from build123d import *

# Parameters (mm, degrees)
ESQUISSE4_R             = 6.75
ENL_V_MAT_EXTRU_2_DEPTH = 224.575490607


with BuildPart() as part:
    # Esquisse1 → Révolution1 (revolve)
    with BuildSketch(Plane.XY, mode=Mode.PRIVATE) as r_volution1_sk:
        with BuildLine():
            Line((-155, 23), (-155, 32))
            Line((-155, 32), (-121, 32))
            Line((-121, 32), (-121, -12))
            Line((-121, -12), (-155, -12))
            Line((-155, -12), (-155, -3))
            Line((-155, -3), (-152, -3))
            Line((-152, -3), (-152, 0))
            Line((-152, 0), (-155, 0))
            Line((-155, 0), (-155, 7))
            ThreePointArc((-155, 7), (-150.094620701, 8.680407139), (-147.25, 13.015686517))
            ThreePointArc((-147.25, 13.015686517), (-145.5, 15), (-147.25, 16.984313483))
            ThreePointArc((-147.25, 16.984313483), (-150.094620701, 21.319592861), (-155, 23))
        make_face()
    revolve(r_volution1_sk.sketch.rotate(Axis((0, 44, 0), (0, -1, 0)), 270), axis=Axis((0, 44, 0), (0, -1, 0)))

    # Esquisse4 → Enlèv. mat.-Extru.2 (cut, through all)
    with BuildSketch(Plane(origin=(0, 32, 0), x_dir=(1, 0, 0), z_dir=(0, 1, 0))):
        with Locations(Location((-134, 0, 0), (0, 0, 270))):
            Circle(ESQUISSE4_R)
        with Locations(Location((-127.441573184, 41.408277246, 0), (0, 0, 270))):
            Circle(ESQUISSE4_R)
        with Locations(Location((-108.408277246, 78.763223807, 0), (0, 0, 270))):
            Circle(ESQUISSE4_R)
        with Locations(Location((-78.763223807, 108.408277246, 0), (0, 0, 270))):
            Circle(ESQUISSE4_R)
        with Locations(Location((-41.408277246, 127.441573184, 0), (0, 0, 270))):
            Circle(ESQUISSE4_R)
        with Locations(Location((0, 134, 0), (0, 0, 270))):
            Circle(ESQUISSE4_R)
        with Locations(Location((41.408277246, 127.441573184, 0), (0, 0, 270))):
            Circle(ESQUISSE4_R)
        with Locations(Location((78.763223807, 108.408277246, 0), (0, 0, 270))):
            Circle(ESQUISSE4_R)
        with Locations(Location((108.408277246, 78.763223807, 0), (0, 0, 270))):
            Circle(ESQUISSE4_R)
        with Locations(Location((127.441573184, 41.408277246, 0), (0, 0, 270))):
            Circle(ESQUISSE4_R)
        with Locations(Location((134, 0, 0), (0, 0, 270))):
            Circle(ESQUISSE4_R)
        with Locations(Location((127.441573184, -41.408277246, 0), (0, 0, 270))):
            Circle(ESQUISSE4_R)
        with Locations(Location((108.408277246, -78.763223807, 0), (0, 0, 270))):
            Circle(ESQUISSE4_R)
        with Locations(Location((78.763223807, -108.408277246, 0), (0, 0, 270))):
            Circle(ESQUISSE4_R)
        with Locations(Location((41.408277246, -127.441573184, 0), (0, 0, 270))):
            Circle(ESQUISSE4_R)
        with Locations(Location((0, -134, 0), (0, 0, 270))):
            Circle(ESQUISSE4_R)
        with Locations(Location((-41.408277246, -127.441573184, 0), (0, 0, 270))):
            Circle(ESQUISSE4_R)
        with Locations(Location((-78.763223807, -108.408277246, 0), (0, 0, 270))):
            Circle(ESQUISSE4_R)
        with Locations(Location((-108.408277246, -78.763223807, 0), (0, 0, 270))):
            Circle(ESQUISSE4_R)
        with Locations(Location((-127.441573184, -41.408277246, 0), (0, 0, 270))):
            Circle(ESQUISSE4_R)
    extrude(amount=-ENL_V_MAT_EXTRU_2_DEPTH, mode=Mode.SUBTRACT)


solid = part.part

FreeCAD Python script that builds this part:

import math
import FreeCAD as App
import Part
import Sketcher

doc = App.newDocument("Part")
body = doc.addObject("PartDesign::Body", "Body")

sketch1 = doc.addObject("Sketcher::SketchObject", "Sketch")
body.addObject(sketch1)
sketch1.AttachmentSupport = (doc.XY_Plane, [""])
sketch1.MapMode = "FlatFace"
sketch1.addGeometry(Part.LineSegment(App.Vector(-155, 32, 0), App.Vector(-155, 23, 0)), False)
sketch1.addGeometry(Part.ArcOfCircle(Part.Circle(App.Vector(-155, 15, 0), App.Vector(0, 0, 1), 8), math.radians(14.361512), math.radians(90)), False)
sketch1.addGeometry(Part.ArcOfCircle(Part.Circle(App.Vector(-147.5, 15, 0), App.Vector(0, 0, 1), 2), math.radians(-82.819244), math.radians(82.819244)), False)
sketch1.addGeometry(Part.ArcOfCircle(Part.Circle(App.Vector(-155, 15, 0), App.Vector(0, 0, 1), 8), math.radians(-90), math.radians(-14.361512)), False)
sketch1.addGeometry(Part.LineSegment(App.Vector(-155, 7, 0), App.Vector(-155, 0, 0)), False)
sketch1.addGeometry(Part.LineSegment(App.Vector(-155, 0, 0), App.Vector(-152, 0, 0)), False)
sketch1.addGeometry(Part.LineSegment(App.Vector(-152, 0, 0), App.Vector(-152, -3, 0)), False)
sketch1.addGeometry(Part.LineSegment(App.Vector(-152, -3, 0), App.Vector(-155, -3, 0)), False)
sketch1.addGeometry(Part.LineSegment(App.Vector(-155, -3, 0), App.Vector(-155, -12, 0)), False)
sketch1.addGeometry(Part.LineSegment(App.Vector(-155, -12, 0), App.Vector(-121, -12, 0)), False)
sketch1.addGeometry(Part.LineSegment(App.Vector(-121, -12, 0), App.Vector(-121, 32, 0)), False)
sketch1.addGeometry(Part.LineSegment(App.Vector(-121, 32, 0), App.Vector(-155, 32, 0)), False)
sketch1.addConstraint(Sketcher.Constraint("Coincident", 0, 2, 1, 2))
sketch1.addConstraint(Sketcher.Constraint("Coincident", 1, 1, 2, 2))
sketch1.addConstraint(Sketcher.Constraint("Coincident", 2, 1, 3, 2))
sketch1.addConstraint(Sketcher.Constraint("Coincident", 3, 1, 4, 1))
sketch1.addConstraint(Sketcher.Constraint("Coincident", 4, 2, 5, 1))
sketch1.addConstraint(Sketcher.Constraint("Coincident", 5, 2, 6, 1))
sketch1.addConstraint(Sketcher.Constraint("Coincident", 6, 2, 7, 1))
sketch1.addConstraint(Sketcher.Constraint("Coincident", 7, 2, 8, 1))
sketch1.addConstraint(Sketcher.Constraint("Coincident", 8, 2, 9, 1))
sketch1.addConstraint(Sketcher.Constraint("Coincident", 9, 2, 10, 1))
sketch1.addConstraint(Sketcher.Constraint("Coincident", 10, 2, 11, 1))
sketch1.addConstraint(Sketcher.Constraint("Coincident", 11, 2, 0, 1))
sketch1.addConstraint(Sketcher.Constraint("Vertical", 0))
sketch1.addConstraint(Sketcher.Constraint("Vertical", 4))
sketch1.addConstraint(Sketcher.Constraint("Horizontal", 5))
sketch1.addConstraint(Sketcher.Constraint("Vertical", 6))
sketch1.addConstraint(Sketcher.Constraint("Horizontal", 7))
sketch1.addConstraint(Sketcher.Constraint("Vertical", 8))
sketch1.addConstraint(Sketcher.Constraint("Horizontal", 9))
sketch1.addConstraint(Sketcher.Constraint("Vertical", 10))
sketch1.addConstraint(Sketcher.Constraint("Horizontal", 11))
sketch1.addConstraint(Sketcher.Constraint("Coincident", 3, 3, 1, 3))
sketch1.addConstraint(Sketcher.Constraint("Equal", 1, 3))
sketch1.addConstraint(Sketcher.Constraint("PointOnObject", 4, 2, -1))
sketch1.addConstraint(Sketcher.Constraint("Horizontal", 1, 3, 2, 3))
sketch1.addConstraint(Sketcher.Constraint("Vertical", 3, 3, 0, 2))
sketch1.addConstraint(Sketcher.Constraint("Vertical", 0, 2, 3, 1))
sketch1.addConstraint(Sketcher.Constraint("Vertical", 4, 2, 7, 2))
sketch1.addConstraint(Sketcher.Constraint("Equal", 7, 6))
sketch1.addConstraint(Sketcher.Constraint("Equal", 0, 8))
sketch1.addConstraint(Sketcher.Constraint("Radius", 1, 8.0))
sketch1.addConstraint(Sketcher.Constraint("Radius", 2, 2.0))
sketch1.addConstraint(Sketcher.Constraint("DistanceX", 5, 1, 5, 2, 3.0))
sketch1.addConstraint(Sketcher.Constraint("DistanceX", 9, 1, 9, 2, 34.0))
sketch1.addConstraint(Sketcher.Constraint("DistanceY", 0, 2, 0, 1, 9.0))
sketch1.addConstraint(Sketcher.Constraint("DistanceY", 4, 2, 4, 1, 7.0))
sketch1.addConstraint(Sketcher.Constraint("DistanceX", 1, 3, -1, 1, 155.0))
sketch1.addConstraint(Sketcher.Constraint("DistanceX", 2, 3, -1, 1, 147.5))
revolution = doc.addObject("PartDesign::Revolution", "Revolution")
body.addObject(revolution)
revolution.Profile = sketch1
revolution.ReferenceAxis = (sketch1, ["V_Axis"])
revolution.Angle = 360

sketch2 = doc.addObject("Sketcher::SketchObject", "Sketch001")
body.addObject(sketch2)
sketch2.AttachmentSupport = (doc.XZ_Plane, [""])
sketch2.MapMode = "FlatFace"
sketch2.AttachmentOffset = App.Placement(App.Vector(0, 0, -32), App.Rotation())
sketch2.addGeometry(Part.Circle(App.Vector(-134, 0, 0), App.Vector(0, 0, 1), 6.75), False)
sketch2.addGeometry(Part.Circle(App.Vector(-127.441573, -41.408277, 0), App.Vector(0, 0, 1), 6.75), False)
sketch2.addGeometry(Part.Circle(App.Vector(-108.408277, -78.763224, 0), App.Vector(0, 0, 1), 6.75), False)
sketch2.addGeometry(Part.Circle(App.Vector(-78.763224, -108.408277, 0), App.Vector(0, 0, 1), 6.75), False)
sketch2.addGeometry(Part.Circle(App.Vector(-41.408277, -127.441573, 0), App.Vector(0, 0, 1), 6.75), False)
sketch2.addGeometry(Part.Circle(App.Vector(0, -134, 0), App.Vector(0, 0, 1), 6.75), False)
sketch2.addGeometry(Part.Circle(App.Vector(41.408277, -127.441573, 0), App.Vector(0, 0, 1), 6.75), False)
sketch2.addGeometry(Part.Circle(App.Vector(78.763224, -108.408277, 0), App.Vector(0, 0, 1), 6.75), False)
sketch2.addGeometry(Part.Circle(App.Vector(108.408277, -78.763224, 0), App.Vector(0, 0, 1), 6.75), False)
sketch2.addGeometry(Part.Circle(App.Vector(127.441573, -41.408277, 0), App.Vector(0, 0, 1), 6.75), False)
sketch2.addGeometry(Part.Circle(App.Vector(134, 0, 0), App.Vector(0, 0, 1), 6.75), False)
sketch2.addGeometry(Part.Circle(App.Vector(127.441573, 41.408277, 0), App.Vector(0, 0, 1), 6.75), False)
sketch2.addGeometry(Part.Circle(App.Vector(108.408277, 78.763224, 0), App.Vector(0, 0, 1), 6.75), False)
sketch2.addGeometry(Part.Circle(App.Vector(78.763224, 108.408277, 0), App.Vector(0, 0, 1), 6.75), False)
sketch2.addGeometry(Part.Circle(App.Vector(41.408277, 127.441573, 0), App.Vector(0, 0, 1), 6.75), False)
sketch2.addGeometry(Part.Circle(App.Vector(0, 134, 0), App.Vector(0, 0, 1), 6.75), False)
sketch2.addGeometry(Part.Circle(App.Vector(-41.408277, 127.441573, 0), App.Vector(0, 0, 1), 6.75), False)
sketch2.addGeometry(Part.Circle(App.Vector(-78.763224, 108.408277, 0), App.Vector(0, 0, 1), 6.75), False)
sketch2.addGeometry(Part.Circle(App.Vector(-108.408277, 78.763224, 0), App.Vector(0, 0, 1), 6.75), False)
sketch2.addGeometry(Part.Circle(App.Vector(-127.441573, 41.408277, 0), App.Vector(0, 0, 1), 6.75), False)
sketch2.addConstraint(Sketcher.Constraint("Equal", 0, 1))
sketch2.addConstraint(Sketcher.Constraint("Equal", 1, 2))
sketch2.addConstraint(Sketcher.Constraint("Equal", 2, 3))
sketch2.addConstraint(Sketcher.Constraint("Equal", 3, 4))
sketch2.addConstraint(Sketcher.Constraint("Equal", 4, 5))
sketch2.addConstraint(Sketcher.Constraint("Equal", 5, 6))
sketch2.addConstraint(Sketcher.Constraint("Equal", 6, 7))
sketch2.addConstraint(Sketcher.Constraint("Equal", 7, 8))
sketch2.addConstraint(Sketcher.Constraint("Equal", 8, 9))
sketch2.addConstraint(Sketcher.Constraint("Equal", 9, 10))
sketch2.addConstraint(Sketcher.Constraint("Equal", 10, 11))
sketch2.addConstraint(Sketcher.Constraint("Equal", 11, 12))
sketch2.addConstraint(Sketcher.Constraint("Equal", 12, 13))
sketch2.addConstraint(Sketcher.Constraint("Equal", 13, 14))
sketch2.addConstraint(Sketcher.Constraint("Equal", 14, 15))
sketch2.addConstraint(Sketcher.Constraint("Equal", 15, 16))
sketch2.addConstraint(Sketcher.Constraint("Equal", 16, 17))
sketch2.addConstraint(Sketcher.Constraint("Equal", 17, 18))
sketch2.addConstraint(Sketcher.Constraint("Equal", 18, 19))
sketch2.addConstraint(Sketcher.Constraint("Symmetric", 0, 3, 10, 3, -1, 1))
sketch2.addConstraint(Sketcher.Constraint("Symmetric", 1, 3, 11, 3, -1, 1))
sketch2.addConstraint(Sketcher.Constraint("Symmetric", 2, 3, 12, 3, -1, 1))
sketch2.addConstraint(Sketcher.Constraint("Symmetric", 3, 3, 13, 3, -1, 1))
sketch2.addConstraint(Sketcher.Constraint("Symmetric", 4, 3, 14, 3, -1, 1))
sketch2.addConstraint(Sketcher.Constraint("Symmetric", 5, 3, 15, 3, -1, 1))
sketch2.addConstraint(Sketcher.Constraint("Symmetric", 6, 3, 16, 3, -1, 1))
sketch2.addConstraint(Sketcher.Constraint("Symmetric", 7, 3, 17, 3, -1, 1))
sketch2.addConstraint(Sketcher.Constraint("Symmetric", 8, 3, 18, 3, -1, 1))
sketch2.addConstraint(Sketcher.Constraint("Symmetric", 9, 3, 19, 3, -1, 1))
sketch2.addConstraint(Sketcher.Constraint("Symmetric", 4, 3, 6, 3, -2))
sketch2.addConstraint(Sketcher.Constraint("Symmetric", 3, 3, 7, 3, -2))
sketch2.addConstraint(Sketcher.Constraint("Symmetric", 2, 3, 8, 3, -2))
sketch2.addConstraint(Sketcher.Constraint("Symmetric", 1, 3, 9, 3, -2))
sketch2.addConstraint(Sketcher.Constraint("PointOnObject", 0, 3, -1))
sketch2.addConstraint(Sketcher.Constraint("PointOnObject", 5, 3, -2))
sketch2.addConstraint(Sketcher.Constraint("Diameter", 0, 13.5))
sketch2.addConstraint(Sketcher.Constraint("DistanceX", 0, 3, -1, 1, 134.0))
sketch2.addConstraint(Sketcher.Constraint("DistanceY", 5, 3, -1, 1, 134.0))
sketch2.addConstraint(Sketcher.Constraint("DistanceY", 3, 3, 1, 3, 67.0))
sketch2.addConstraint(Sketcher.Constraint("DistanceX", 2, 3, 4, 3, 67.0))
sketch2.addConstraint(Sketcher.Constraint("DistanceX", 3, 3, 6, 3, 120.171501))
sketch2.addConstraint(Sketcher.Constraint("DistanceY", 8, 3, 11, 3, 120.171501))
sketch2.addConstraint(Sketcher.Constraint("DistanceX", 1, 3, 3, 3, 48.678349))
sketch2.addConstraint(Sketcher.Constraint("DistanceY", 4, 3, 2, 3, 48.678349))
sketch2.addConstraint(Sketcher.Constraint("DistanceX", 1, 3, -1, 1, 127.441573))
sketch2.addConstraint(Sketcher.Constraint("DistanceY", 1, 3, -1, 1, 41.408277))
pocket1 = doc.addObject("PartDesign::Pocket", "Pocket")
body.addObject(pocket1)
pocket1.Profile = sketch2
pocket1.Type = "ThroughAll"
pocket1.Reversed = True

doc.recompute()
